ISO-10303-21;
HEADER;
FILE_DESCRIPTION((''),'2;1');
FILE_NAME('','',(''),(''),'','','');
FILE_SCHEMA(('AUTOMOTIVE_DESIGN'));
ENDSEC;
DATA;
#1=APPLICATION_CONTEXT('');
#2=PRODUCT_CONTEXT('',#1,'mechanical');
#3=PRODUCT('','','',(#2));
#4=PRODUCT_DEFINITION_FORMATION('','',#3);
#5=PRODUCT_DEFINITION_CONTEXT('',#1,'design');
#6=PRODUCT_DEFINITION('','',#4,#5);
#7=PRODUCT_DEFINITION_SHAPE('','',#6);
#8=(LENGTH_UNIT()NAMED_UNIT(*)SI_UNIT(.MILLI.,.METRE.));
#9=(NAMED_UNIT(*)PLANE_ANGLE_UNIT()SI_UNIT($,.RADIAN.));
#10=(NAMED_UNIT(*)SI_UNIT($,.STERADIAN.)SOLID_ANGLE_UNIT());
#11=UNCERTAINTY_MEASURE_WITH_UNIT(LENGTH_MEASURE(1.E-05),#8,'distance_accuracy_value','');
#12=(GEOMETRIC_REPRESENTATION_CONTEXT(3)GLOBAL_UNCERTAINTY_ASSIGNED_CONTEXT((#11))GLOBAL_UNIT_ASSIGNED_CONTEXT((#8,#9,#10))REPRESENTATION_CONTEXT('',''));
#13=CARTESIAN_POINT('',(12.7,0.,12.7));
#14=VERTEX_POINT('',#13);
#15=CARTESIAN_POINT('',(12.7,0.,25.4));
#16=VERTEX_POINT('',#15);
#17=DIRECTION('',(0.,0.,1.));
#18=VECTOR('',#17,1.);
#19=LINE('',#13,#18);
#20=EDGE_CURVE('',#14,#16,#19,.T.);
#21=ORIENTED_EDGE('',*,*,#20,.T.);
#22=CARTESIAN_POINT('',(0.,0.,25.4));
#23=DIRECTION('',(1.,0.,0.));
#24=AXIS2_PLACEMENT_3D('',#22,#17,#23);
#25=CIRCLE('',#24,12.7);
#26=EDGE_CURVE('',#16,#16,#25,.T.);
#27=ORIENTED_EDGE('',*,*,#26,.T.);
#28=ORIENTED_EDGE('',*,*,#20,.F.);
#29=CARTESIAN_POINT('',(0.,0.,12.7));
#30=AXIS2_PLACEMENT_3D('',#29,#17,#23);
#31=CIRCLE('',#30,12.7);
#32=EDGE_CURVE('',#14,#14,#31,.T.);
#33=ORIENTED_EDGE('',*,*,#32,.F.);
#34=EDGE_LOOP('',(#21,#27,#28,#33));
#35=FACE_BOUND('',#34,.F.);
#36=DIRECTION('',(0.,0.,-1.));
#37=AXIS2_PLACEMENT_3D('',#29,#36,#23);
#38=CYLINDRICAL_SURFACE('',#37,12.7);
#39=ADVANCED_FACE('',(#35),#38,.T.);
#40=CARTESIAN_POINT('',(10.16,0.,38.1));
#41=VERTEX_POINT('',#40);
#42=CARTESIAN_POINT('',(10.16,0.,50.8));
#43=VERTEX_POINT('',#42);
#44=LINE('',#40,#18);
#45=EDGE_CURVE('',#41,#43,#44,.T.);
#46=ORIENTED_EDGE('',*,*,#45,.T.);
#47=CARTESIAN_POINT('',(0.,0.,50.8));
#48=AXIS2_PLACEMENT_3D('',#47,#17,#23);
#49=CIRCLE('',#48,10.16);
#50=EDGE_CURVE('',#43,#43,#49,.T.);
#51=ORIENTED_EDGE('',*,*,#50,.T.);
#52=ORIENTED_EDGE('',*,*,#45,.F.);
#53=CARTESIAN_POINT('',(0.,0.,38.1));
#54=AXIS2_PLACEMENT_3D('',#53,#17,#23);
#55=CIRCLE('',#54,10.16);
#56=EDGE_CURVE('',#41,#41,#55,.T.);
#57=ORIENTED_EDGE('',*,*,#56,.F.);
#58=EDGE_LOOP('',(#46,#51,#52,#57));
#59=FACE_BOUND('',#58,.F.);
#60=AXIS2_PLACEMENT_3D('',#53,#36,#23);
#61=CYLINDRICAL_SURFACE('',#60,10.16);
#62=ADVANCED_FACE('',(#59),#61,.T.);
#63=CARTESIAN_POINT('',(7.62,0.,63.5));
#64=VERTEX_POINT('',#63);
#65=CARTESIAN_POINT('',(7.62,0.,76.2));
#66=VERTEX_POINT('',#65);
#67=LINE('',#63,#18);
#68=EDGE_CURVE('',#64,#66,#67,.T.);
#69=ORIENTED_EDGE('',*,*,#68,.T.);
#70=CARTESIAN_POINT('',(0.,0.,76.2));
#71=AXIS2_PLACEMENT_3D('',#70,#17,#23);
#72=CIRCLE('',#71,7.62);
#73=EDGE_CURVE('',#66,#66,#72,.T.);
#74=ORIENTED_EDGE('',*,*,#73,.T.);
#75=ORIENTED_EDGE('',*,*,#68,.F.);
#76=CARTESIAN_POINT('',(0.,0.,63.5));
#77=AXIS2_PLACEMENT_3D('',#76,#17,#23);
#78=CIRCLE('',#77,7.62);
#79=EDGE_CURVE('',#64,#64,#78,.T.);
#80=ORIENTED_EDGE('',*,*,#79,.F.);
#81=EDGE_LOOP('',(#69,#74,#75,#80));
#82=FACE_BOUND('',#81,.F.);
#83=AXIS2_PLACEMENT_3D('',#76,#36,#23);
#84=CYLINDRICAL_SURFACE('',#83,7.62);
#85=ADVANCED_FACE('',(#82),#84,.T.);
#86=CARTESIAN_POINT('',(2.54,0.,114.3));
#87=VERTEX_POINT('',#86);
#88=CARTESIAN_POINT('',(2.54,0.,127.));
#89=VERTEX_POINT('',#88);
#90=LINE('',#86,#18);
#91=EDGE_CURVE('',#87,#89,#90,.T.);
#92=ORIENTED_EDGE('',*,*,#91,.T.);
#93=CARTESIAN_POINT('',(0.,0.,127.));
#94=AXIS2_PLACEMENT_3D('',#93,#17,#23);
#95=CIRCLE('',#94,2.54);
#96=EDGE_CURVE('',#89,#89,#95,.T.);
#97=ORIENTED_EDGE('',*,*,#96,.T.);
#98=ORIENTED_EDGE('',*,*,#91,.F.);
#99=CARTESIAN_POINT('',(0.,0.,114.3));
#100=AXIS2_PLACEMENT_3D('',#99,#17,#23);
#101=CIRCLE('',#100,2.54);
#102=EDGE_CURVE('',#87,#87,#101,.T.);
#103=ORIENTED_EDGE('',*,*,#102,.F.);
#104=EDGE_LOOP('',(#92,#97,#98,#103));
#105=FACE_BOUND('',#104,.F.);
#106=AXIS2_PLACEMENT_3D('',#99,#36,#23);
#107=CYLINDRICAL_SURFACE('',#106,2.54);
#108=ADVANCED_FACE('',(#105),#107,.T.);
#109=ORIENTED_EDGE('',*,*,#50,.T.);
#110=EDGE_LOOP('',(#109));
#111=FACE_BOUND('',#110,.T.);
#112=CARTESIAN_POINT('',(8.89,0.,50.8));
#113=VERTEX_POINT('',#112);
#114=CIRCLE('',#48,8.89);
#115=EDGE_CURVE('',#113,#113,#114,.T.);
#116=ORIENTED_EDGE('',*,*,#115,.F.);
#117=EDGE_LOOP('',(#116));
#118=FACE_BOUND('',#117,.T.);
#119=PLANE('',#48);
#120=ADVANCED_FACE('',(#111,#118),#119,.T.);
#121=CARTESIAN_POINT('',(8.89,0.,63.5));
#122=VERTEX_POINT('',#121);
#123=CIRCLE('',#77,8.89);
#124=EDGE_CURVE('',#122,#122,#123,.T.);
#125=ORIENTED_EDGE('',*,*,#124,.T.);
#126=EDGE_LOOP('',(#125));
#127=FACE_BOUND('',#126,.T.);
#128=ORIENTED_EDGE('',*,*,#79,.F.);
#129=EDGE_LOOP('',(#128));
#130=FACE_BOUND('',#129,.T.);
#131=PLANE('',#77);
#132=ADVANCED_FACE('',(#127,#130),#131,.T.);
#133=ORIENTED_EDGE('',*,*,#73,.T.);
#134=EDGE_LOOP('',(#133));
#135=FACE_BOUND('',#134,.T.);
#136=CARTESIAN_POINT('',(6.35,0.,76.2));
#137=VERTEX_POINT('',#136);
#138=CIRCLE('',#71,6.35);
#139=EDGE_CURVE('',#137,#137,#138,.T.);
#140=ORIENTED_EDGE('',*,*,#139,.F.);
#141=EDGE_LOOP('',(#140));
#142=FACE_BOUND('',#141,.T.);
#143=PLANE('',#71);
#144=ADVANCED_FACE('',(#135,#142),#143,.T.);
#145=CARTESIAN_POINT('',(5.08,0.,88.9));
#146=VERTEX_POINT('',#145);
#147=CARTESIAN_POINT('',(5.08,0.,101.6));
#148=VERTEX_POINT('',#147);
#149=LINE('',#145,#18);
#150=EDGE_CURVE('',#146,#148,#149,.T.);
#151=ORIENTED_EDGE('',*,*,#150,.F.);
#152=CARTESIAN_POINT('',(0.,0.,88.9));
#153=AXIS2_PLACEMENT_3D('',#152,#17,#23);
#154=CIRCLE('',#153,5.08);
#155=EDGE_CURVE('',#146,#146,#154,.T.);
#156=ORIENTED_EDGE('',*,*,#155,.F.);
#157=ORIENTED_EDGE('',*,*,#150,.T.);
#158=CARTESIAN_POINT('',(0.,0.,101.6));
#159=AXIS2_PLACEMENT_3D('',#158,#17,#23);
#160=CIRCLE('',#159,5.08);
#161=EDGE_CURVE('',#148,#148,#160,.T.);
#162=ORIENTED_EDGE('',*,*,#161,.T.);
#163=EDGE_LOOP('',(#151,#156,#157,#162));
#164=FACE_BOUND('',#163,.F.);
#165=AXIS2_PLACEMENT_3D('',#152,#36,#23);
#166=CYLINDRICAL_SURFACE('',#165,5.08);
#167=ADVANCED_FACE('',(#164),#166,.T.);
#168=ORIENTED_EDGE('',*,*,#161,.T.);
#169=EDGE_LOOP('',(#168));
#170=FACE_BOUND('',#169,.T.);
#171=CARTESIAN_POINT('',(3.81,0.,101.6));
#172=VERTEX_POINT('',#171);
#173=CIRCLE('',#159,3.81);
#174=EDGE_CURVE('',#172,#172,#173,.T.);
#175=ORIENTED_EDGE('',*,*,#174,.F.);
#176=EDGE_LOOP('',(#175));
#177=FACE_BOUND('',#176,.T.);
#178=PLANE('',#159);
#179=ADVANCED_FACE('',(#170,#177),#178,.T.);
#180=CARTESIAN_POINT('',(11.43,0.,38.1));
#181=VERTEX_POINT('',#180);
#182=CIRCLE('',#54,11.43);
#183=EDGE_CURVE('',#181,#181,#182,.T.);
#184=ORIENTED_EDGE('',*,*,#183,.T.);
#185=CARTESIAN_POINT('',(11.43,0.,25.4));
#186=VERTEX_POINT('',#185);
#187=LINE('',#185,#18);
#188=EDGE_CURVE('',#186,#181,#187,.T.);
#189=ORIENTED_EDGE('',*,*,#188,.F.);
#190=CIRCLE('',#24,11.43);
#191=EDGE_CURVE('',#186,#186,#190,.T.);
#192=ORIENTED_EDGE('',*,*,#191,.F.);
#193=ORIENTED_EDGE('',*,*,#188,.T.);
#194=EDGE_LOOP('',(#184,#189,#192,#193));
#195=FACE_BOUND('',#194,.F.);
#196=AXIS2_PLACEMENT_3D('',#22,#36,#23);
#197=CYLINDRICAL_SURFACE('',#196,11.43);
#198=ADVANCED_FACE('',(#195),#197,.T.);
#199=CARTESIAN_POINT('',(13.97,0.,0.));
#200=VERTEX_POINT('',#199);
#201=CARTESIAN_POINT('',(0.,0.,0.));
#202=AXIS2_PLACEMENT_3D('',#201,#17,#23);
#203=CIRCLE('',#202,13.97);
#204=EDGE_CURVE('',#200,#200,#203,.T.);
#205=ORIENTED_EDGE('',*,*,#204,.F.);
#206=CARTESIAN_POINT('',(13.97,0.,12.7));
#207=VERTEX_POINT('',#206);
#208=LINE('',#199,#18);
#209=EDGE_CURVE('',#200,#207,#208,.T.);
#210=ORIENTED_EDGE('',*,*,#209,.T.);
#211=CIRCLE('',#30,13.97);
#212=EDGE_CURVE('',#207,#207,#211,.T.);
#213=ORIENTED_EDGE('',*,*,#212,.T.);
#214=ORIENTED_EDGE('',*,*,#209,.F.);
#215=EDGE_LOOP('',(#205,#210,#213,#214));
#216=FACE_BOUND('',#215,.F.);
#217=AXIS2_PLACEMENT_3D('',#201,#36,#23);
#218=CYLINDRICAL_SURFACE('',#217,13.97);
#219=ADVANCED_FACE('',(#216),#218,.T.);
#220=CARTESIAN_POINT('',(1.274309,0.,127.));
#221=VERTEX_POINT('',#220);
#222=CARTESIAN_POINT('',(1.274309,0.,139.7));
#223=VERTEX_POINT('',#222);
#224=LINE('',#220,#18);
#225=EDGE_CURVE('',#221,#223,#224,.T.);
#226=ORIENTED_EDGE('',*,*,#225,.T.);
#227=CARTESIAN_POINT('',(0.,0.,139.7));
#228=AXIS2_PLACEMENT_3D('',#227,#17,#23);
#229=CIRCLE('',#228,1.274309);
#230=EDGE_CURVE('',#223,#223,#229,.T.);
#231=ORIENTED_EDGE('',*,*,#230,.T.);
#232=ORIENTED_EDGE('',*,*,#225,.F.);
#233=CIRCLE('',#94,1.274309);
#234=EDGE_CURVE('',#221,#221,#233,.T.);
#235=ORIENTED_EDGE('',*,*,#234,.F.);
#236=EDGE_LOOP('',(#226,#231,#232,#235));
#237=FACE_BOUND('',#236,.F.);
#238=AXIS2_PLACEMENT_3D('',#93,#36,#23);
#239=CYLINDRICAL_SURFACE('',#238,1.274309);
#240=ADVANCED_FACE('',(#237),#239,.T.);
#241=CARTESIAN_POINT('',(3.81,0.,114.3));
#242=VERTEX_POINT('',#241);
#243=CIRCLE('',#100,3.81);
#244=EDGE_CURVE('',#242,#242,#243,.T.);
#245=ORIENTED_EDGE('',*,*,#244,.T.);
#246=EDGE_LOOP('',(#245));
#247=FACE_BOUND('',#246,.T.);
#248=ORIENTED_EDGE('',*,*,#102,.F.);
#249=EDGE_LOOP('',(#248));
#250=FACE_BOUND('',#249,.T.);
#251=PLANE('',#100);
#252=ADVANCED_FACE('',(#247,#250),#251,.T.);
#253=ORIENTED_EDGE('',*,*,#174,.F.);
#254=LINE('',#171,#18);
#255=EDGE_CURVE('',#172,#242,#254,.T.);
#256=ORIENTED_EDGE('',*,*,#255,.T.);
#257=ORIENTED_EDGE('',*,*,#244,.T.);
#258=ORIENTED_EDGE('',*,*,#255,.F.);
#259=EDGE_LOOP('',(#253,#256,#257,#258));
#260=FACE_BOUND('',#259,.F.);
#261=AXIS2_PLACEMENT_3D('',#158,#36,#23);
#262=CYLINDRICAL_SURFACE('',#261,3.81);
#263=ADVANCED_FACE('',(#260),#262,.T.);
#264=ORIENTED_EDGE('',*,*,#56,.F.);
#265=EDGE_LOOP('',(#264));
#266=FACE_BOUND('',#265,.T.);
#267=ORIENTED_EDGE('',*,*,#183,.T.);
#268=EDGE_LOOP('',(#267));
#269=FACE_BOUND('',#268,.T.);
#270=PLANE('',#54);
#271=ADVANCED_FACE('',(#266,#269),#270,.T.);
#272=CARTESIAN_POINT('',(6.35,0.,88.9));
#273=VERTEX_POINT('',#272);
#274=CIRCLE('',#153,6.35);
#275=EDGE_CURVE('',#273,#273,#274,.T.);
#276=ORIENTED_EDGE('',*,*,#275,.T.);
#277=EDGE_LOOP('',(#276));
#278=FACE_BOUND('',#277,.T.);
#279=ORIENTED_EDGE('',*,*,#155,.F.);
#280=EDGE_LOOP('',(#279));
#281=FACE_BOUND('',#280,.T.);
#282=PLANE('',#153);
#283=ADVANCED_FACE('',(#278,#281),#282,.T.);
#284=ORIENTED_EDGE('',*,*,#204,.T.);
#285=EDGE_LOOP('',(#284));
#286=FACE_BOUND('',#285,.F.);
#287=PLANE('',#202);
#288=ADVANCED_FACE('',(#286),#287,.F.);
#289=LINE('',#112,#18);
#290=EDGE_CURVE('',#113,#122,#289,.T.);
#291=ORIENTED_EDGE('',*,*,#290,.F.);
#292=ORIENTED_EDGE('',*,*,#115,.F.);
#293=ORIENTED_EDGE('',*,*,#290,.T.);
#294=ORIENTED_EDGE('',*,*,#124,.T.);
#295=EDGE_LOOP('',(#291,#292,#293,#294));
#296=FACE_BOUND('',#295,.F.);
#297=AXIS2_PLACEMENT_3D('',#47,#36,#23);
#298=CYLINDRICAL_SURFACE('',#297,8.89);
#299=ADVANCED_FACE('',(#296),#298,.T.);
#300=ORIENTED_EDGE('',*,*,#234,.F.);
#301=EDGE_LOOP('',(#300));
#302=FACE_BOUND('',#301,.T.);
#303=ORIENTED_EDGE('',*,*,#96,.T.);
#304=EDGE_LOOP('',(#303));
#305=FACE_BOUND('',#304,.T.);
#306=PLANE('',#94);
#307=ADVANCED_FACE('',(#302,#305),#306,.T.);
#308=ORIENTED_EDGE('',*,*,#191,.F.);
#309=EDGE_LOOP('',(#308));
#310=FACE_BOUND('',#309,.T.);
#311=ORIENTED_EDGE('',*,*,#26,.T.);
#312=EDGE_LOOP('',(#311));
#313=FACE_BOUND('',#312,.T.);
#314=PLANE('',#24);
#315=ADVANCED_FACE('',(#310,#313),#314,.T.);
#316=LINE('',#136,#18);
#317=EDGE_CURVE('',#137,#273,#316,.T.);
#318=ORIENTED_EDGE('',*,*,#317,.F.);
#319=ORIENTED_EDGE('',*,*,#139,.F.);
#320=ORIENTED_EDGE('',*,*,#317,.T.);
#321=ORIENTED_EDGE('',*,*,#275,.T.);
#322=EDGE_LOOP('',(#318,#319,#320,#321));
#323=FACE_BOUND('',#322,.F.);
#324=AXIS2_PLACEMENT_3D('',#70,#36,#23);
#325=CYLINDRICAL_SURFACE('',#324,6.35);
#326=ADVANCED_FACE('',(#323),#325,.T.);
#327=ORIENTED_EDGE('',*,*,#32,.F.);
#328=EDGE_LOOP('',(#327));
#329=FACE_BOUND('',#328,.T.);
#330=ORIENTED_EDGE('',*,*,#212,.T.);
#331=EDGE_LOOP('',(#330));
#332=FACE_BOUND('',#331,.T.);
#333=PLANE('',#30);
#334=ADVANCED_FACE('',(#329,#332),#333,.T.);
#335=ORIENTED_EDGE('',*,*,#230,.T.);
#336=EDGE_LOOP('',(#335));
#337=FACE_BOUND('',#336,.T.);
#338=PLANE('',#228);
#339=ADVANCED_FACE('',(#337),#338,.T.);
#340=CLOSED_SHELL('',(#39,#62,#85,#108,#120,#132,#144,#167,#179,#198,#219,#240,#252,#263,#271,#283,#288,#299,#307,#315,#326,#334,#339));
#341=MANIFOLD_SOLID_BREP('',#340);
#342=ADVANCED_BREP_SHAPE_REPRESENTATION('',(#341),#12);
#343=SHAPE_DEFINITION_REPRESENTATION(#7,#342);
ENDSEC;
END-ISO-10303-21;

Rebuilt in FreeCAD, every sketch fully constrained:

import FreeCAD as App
import Part
import Sketcher
Q = App.Units.Quantity

doc = App.newDocument("Part")
body = doc.addObject("PartDesign::Body", "Body")

# Sketch on XY plane
sketch1 = doc.addObject("Sketcher::SketchObject", "Sketch")
body.addObject(sketch1)
sketch1.AttachmentSupport = (doc.XY_Plane, [""])
sketch1.MapMode = "FlatFace"
sketch1.addGeometry(Part.Circle(App.Vector(0, 0, 0), App.Vector(0, 0, 1), 14), False)
sketch1.addConstraint([
    Sketcher.Constraint("Coincident", 0, 3, -1, 1),
    Sketcher.Constraint("Diameter", 0, Q("1.1 in")),
])
pad1 = doc.addObject("PartDesign::Pad", "Pad")
body.addObject(pad1)
pad1.Profile = sketch1
pad1.Length = Q("0.5 in")

# Sketch on XY plane
sketch2 = doc.addObject("Sketcher::SketchObject", "Sketch001")
body.addObject(sketch2)
sketch2.AttachmentSupport = (doc.XY_Plane, [""])
sketch2.MapMode = "FlatFace"
sketch2.AttachmentOffset = App.Placement(App.Vector(0, 0, 0.5 * 25.4), App.Rotation())
sketch2.addGeometry(Part.Circle(App.Vector(0, 0, 0), App.Vector(0, 0, 1), 13), False)
sketch2.addConstraint([
    Sketcher.Constraint("Coincident", 0, 3, -1, 1),
    Sketcher.Constraint("Diameter", 0, Q("1 in")),
])
pad2 = doc.addObject("PartDesign::Pad", "Pad001")
body.addObject(pad2)
pad2.Profile = sketch2
pad2.Length = Q("0.5 in")

# Sketch on XY plane
sketch3 = doc.addObject("Sketcher::SketchObject", "Sketch002")
body.addObject(sketch3)
sketch3.AttachmentSupport = (doc.XY_Plane, [""])
sketch3.MapMode = "FlatFace"
sketch3.AttachmentOffset = App.Placement(App.Vector(0, 0, 1 * 25.4), App.Rotation())
sketch3.addGeometry(Part.Circle(App.Vector(0, 0, 0), App.Vector(0, 0, 1), 11), False)
sketch3.addConstraint([
    Sketcher.Constraint("Coincident", 0, 3, -1, 1),
    Sketcher.Constraint("Diameter", 0, Q("0.9 in")),
])
pad3 = doc.addObject("PartDesign::Pad", "Pad002")
body.addObject(pad3)
pad3.Profile = sketch3
pad3.Length = Q("0.5 in")

# Sketch on XY plane
sketch4 = doc.addObject("Sketcher::SketchObject", "Sketch003")
body.addObject(sketch4)
sketch4.AttachmentSupport = (doc.XY_Plane, [""])
sketch4.MapMode = "FlatFace"
sketch4.AttachmentOffset = App.Placement(App.Vector(0, 0, 1.5 * 25.4), App.Rotation())
sketch4.addGeometry(Part.Circle(App.Vector(0, 0, 0), App.Vector(0, 0, 1), 10), False)
sketch4.addConstraint([
    Sketcher.Constraint("Coincident", 0, 3, -1, 1),
    Sketcher.Constraint("Diameter", 0, Q("0.8 in")),
])
pad4 = doc.addObject("PartDesign::Pad", "Pad003")
body.addObject(pad4)
pad4.Profile = sketch4
pad4.Length = Q("0.5 in")

# Sketch on XY plane
sketch5 = doc.addObject("Sketcher::SketchObject", "Sketch004")
body.addObject(sketch5)
sketch5.AttachmentSupport = (doc.XY_Plane, [""])
sketch5.MapMode = "FlatFace"
sketch5.AttachmentOffset = App.Placement(App.Vector(0, 0, 2 * 25.4), App.Rotation())
sketch5.addGeometry(Part.Circle(App.Vector(0, 0, 0), App.Vector(0, 0, 1), 9), False)
sketch5.addConstraint([
    Sketcher.Constraint("Coincident", 0, 3, -1, 1),
    Sketcher.Constraint("Diameter", 0, Q("0.7 in")),
])
pad5 = doc.addObject("PartDesign::Pad", "Pad004")
body.addObject(pad5)
pad5.Profile = sketch5
pad5.Length = Q("0.5 in")

# Sketch on XY plane
sketch6 = doc.addObject("Sketcher::SketchObject", "Sketch005")
body.addObject(sketch6)
sketch6.AttachmentSupport = (doc.XY_Plane, [""])
sketch6.MapMode = "FlatFace"
sketch6.AttachmentOffset = App.Placement(App.Vector(0, 0, 2.5 * 25.4), App.Rotation())
sketch6.addGeometry(Part.Circle(App.Vector(0, 0, 0), App.Vector(0, 0, 1), 8), False)
sketch6.addConstraint([
    Sketcher.Constraint("Coincident", 0, 3, -1, 1),
    Sketcher.Constraint("Diameter", 0, Q("0.6 in")),
])
pad6 = doc.addObject("PartDesign::Pad", "Pad005")
body.addObject(pad6)
pad6.Profile = sketch6
pad6.Length = Q("0.5 in")

# Sketch on XY plane
sketch7 = doc.addObject("Sketcher::SketchObject", "Sketch006")
body.addObject(sketch7)
sketch7.AttachmentSupport = (doc.XY_Plane, [""])
sketch7.MapMode = "FlatFace"
sketch7.AttachmentOffset = App.Placement(App.Vector(0, 0, 3 * 25.4), App.Rotation())
sketch7.addGeometry(Part.Circle(App.Vector(0, 0, 0), App.Vector(0, 0, 1), 6), False)
sketch7.addConstraint([
    Sketcher.Constraint("Coincident", 0, 3, -1, 1),
    Sketcher.Constraint("Diameter", 0, Q("0.5 in")),
])
pad7 = doc.addObject("PartDesign::Pad", "Pad006")
body.addObject(pad7)
pad7.Profile = sketch7
pad7.Length = Q("0.5 in")

# Sketch on XY plane
sketch8 = doc.addObject("Sketcher::SketchObject", "Sketch007")
body.addObject(sketch8)
sketch8.AttachmentSupport = (doc.XY_Plane, [""])
sketch8.MapMode = "FlatFace"
sketch8.AttachmentOffset = App.Placement(App.Vector(0, 0, 3.5 * 25.4), App.Rotation())
sketch8.addGeometry(Part.Circle(App.Vector(0, 0, 0), App.Vector(0, 0, 1), 5), False)
sketch8.addConstraint([
    Sketcher.Constraint("Coincident", 0, 3, -1, 1),
    Sketcher.Constraint("Diameter", 0, Q("0.4 in")),
])
pad8 = doc.addObject("PartDesign::Pad", "Pad007")
body.addObject(pad8)
pad8.Profile = sketch8
pad8.Length = Q("0.5 in")

# Sketch on XY plane
sketch9 = doc.addObject("Sketcher::SketchObject", "Sketch008")
body.addObject(sketch9)
sketch9.AttachmentSupport = (doc.XY_Plane, [""])
sketch9.MapMode = "FlatFace"
sketch9.AttachmentOffset = App.Placement(App.Vector(0, 0, 4 * 25.4), App.Rotation())
sketch9.addGeometry(Part.Circle(App.Vector(0, 0, 0), App.Vector(0, 0, 1), 3.8), False)
sketch9.addConstraint([
    Sketcher.Constraint("Coincident", 0, 3, -1, 1),
    Sketcher.Constraint("Diameter", 0, Q("0.3 in")),
])
pad9 = doc.addObject("PartDesign::Pad", "Pad008")
body.addObject(pad9)
pad9.Profile = sketch9
pad9.Length = Q("0.5 in")

# Sketch on XY plane
sketch10 = doc.addObject("Sketcher::SketchObject", "Sketch009")
body.addObject(sketch10)
sketch10.AttachmentSupport = (doc.XY_Plane, [""])
sketch10.MapMode = "FlatFace"
sketch10.AttachmentOffset = App.Placement(App.Vector(0, 0, 4.5 * 25.4), App.Rotation())
sketch10.addGeometry(Part.Circle(App.Vector(0, 0, 0), App.Vector(0, 0, 1), 2.5), False)
sketch10.addConstraint([
    Sketcher.Constraint("Coincident", 0, 3, -1, 1),
    Sketcher.Constraint("Diameter", 0, Q("0.2 in")),
])
pad10 = doc.addObject("PartDesign::Pad", "Pad009")
body.addObject(pad10)
pad10.Profile = sketch10
pad10.Length = Q("0.5 in")

# Sketch on XY plane
sketch11 = doc.addObject("Sketcher::SketchObject", "Sketch010")
body.addObject(sketch11)
sketch11.AttachmentSupport = (doc.XY_Plane, [""])
sketch11.MapMode = "FlatFace"
sketch11.AttachmentOffset = App.Placement(App.Vector(0, 0, 5 * 25.4), App.Rotation())
sketch11.addGeometry(Part.Circle(App.Vector(0, 0, 0), App.Vector(0, 0, 1), 1.3), False)
sketch11.addConstraint([
    Sketcher.Constraint("Coincident", 0, 3, -1, 1),
    Sketcher.Constraint("Diameter", 0, 2.548618),
])
pad11 = doc.addObject("PartDesign::Pad", "Pad010")
body.addObject(pad11)
pad11.Profile = sketch11
pad11.Length = Q("0.5 in")

doc.recompute()
